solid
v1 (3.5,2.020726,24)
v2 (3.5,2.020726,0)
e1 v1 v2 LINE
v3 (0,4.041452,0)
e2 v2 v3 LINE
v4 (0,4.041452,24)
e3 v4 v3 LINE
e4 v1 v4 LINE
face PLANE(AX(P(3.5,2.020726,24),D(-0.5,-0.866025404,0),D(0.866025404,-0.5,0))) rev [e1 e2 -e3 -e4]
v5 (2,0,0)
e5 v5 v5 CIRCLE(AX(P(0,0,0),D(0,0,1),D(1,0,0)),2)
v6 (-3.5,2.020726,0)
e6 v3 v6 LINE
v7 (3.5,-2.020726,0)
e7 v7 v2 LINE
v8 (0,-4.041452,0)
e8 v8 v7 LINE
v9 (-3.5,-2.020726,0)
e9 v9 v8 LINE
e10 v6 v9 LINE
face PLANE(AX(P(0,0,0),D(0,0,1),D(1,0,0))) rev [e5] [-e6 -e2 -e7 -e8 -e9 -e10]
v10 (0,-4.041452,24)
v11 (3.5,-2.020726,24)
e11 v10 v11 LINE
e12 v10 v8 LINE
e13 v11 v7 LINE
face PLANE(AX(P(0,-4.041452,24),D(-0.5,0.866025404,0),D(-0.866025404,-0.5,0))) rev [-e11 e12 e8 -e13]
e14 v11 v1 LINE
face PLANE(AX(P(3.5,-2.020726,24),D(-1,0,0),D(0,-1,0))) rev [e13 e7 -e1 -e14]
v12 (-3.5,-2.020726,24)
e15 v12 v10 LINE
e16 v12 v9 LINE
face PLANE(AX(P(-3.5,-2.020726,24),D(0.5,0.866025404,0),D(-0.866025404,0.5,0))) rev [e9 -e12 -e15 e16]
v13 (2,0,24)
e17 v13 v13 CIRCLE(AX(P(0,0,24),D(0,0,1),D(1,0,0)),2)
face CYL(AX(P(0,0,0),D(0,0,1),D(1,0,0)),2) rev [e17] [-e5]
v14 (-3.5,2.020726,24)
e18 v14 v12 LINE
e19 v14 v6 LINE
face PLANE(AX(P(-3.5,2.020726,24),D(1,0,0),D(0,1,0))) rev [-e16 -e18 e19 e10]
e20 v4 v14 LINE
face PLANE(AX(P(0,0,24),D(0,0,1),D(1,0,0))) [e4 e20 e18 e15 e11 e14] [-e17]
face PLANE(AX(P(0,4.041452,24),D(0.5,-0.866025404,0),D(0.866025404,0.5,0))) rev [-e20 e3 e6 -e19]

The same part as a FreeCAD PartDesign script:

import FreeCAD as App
import Part
import Sketcher
Q = App.Units.Quantity


def add_polygon(sketch, points):
    """Adds a closed chain of lines whose ends are joined by coincident constraints."""
    first, n = sketch.GeometryCount, len(points)
    for a, b in zip(points, points[1:] + points[:1]):
        sketch.addGeometry(Part.LineSegment(App.Vector(*a, 0), App.Vector(*b, 0)), False)
    for i in range(n):
        sketch.addConstraint(Sketcher.Constraint("Coincident", first + i, 2, first + (i + 1) % n, 1))

doc = App.newDocument("Part")
body = doc.addObject("PartDesign::Body", "Body")

# Sketch on XY plane
sketch1 = body.newObject("Sketcher::SketchObject", "Sketch")
sketch1.AttachmentSupport = (doc.getObject("XY_Plane"), [""])
sketch1.MapMode = "FlatFace"
add_polygon(sketch1, [(0, 4), (-3.5, 2), (-3.5, -2), (0, -4), (3.5, -2), (3.5, 2)])  # lines 0-5
sketch1.addConstraint(Sketcher.Constraint("Vertical", 1))
sketch1.addConstraint(Sketcher.Constraint("Vertical", 4))
sketch1.addConstraint(Sketcher.Constraint("Symmetric", 0, 2, 3, 2, -1, 1))
sketch1.addConstraint(Sketcher.Constraint("Symmetric", 2, 2, 5, 2, -1, 1))
sketch1.addConstraint(Sketcher.Constraint("PointOnObject", 2, 2, -2))
sketch1.addConstraint(Sketcher.Constraint("Parallel", 2, 5))
sketch1.addConstraint(Sketcher.Constraint("Horizontal", 1, 2, 3, 2))
sketch1.addConstraint(Sketcher.Constraint("Angle", 0, Q("-150 deg")))
sketch1.addConstraint(Sketcher.Constraint("DistanceX", 1, 2, 3, 2, Q("7 mm")))
sketch1.addConstraint(Sketcher.Constraint("DistanceY", 1, 2, 1, 1, Q("4.041452 mm")))
pad1 = body.newObject("PartDesign::Pad", "Pad")
pad1.Profile = sketch1
pad1.Length = 24

# Sketch on XY plane
sketch2 = body.newObject("Sketcher::SketchObject", "Sketch001")
sketch2.AttachmentSupport = (doc.getObject("XY_Plane"), [""])
sketch2.MapMode = "FlatFace"
sketch2.AttachmentOffset = App.Placement(App.Vector(0, 0, 24), App.Rotation())
sketch2.addGeometry(Part.Circle(App.Vector(0, 0, 0), App.Vector(0, 0, 1), 2), False)
sketch2.addConstraint(Sketcher.Constraint("Coincident", 0, 3, -1, 1))
sketch2.addConstraint(Sketcher.Constraint("Diameter", 0, Q("4 mm")))
pocket1 = body.newObject("PartDesign::Pocket", "Pocket")
pocket1.Profile = sketch2
pocket1.Type = "ThroughAll"

doc.recompute()
